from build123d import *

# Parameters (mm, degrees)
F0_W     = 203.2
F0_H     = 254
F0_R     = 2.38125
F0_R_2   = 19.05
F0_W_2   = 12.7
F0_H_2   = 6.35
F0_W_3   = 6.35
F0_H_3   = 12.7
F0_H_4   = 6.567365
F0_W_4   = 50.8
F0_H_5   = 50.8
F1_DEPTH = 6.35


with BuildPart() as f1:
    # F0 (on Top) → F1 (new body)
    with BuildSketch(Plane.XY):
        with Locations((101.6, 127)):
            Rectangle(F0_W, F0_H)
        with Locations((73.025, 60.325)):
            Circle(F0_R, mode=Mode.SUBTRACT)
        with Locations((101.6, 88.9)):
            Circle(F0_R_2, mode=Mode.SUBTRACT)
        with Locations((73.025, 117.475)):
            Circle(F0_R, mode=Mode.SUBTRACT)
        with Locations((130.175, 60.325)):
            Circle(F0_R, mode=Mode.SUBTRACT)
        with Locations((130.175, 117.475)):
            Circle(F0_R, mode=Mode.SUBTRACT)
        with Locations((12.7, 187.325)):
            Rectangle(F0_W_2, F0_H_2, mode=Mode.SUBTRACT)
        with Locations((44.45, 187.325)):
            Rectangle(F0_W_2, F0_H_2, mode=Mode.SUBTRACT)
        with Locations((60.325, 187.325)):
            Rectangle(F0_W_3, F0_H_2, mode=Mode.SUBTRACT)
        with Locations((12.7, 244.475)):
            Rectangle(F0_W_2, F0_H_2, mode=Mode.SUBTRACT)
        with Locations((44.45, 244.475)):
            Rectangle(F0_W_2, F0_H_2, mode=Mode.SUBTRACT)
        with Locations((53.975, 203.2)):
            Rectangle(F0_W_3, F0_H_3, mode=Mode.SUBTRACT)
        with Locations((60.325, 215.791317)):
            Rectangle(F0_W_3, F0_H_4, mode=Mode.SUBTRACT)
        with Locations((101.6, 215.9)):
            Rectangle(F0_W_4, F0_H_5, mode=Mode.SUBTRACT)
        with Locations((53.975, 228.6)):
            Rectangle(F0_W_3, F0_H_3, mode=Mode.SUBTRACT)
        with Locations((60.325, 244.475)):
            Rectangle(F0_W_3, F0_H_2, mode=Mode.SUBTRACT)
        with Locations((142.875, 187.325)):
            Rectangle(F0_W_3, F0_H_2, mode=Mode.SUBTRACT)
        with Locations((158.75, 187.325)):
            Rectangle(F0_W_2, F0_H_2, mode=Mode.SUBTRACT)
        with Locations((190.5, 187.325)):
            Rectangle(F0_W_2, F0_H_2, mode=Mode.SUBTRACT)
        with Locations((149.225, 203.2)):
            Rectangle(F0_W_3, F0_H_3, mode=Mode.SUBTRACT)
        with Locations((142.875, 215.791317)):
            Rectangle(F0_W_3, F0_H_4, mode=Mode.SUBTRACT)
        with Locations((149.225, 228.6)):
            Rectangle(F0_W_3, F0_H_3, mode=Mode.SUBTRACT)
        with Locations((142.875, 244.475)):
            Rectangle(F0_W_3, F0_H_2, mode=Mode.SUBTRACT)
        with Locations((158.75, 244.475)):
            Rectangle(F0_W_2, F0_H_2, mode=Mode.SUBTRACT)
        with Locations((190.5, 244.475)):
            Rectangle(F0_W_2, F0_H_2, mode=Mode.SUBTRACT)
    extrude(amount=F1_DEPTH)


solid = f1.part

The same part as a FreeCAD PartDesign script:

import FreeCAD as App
import Part
import Sketcher

V = App.Vector
Q = App.Units.Quantity

doc = App.newDocument("Part")
body = doc.addObject("PartDesign::Body", "Body")

# Sketch on XY plane
sketch1 = doc.addObject("Sketcher::SketchObject", "Sketch")
body.addObject(sketch1)
sketch1.AttachmentSupport = (doc.XY_Plane, [""])
sketch1.MapMode = "FlatFace"
sketch1.addGeometry([
    Part.LineSegment(V(0, 254, 0), V(0, 0, 0)),  # 0
    Part.LineSegment(V(0, 0, 0), V(203.2, 0, 0)),  # 1
    Part.LineSegment(V(203.2, 0, 0), V(203.2, 254, 0)),  # 2
    Part.LineSegment(V(203.2, 254, 0), V(0, 254, 0)),  # 3
    Part.Circle(V(73, 60.3, 0), V(0, 0, 1), 2.4),  # 4
    Part.Circle(V(101.6, 88.9, 0), V(0, 0, 1), 19.1),  # 5
    Part.Circle(V(73, 117.5, 0), V(0, 0, 1), 2.4),  # 6
    Part.Circle(V(130.2, 60.3, 0), V(0, 0, 1), 2.4),  # 7
    Part.Circle(V(130.2, 117.5, 0), V(0, 0, 1), 2.4),  # 8
    Part.LineSegment(V(19.1, 184.2, 0), V(6.3, 184.2, 0)),  # 9
    Part.LineSegment(V(6.3, 184.2, 0), V(6.3, 190.5, 0)),  # 10
    Part.LineSegment(V(6.3, 190.5, 0), V(19.1, 190.5, 0)),  # 11
    Part.LineSegment(V(19.1, 190.5, 0), V(19.1, 184.2, 0)),  # 12
    Part.LineSegment(V(50.8, 184.2, 0), V(38.1, 184.2, 0)),  # 13
    Part.LineSegment(V(38.1, 184.2, 0), V(38.1, 190.5, 0)),  # 14
    Part.LineSegment(V(38.1, 190.5, 0), V(50.8, 190.5, 0)),  # 15
    Part.LineSegment(V(50.8, 190.5, 0), V(50.8, 184.2, 0)),  # 16
    Part.LineSegment(V(63.5, 184.2, 0), V(57.1, 184.2, 0)),  # 17
    Part.LineSegment(V(57.1, 184.2, 0), V(57.1, 190.5, 0)),  # 18
    Part.LineSegment(V(57.1, 190.5, 0), V(63.5, 190.5, 0)),  # 19
    Part.LineSegment(V(63.5, 190.5, 0), V(63.5, 184.2, 0)),  # 20
    Part.LineSegment(V(57.1, 196.8, 0), V(50.8, 196.8, 0)),  # 21
    Part.LineSegment(V(50.8, 196.8, 0), V(50.8, 209.6, 0)),  # 22
    Part.LineSegment(V(50.8, 209.6, 0), V(57.1, 209.6, 0)),  # 23
    Part.LineSegment(V(57.1, 209.6, 0), V(57.1, 196.8, 0)),  # 24
    Part.LineSegment(V(19.1, 241.3, 0), V(6.3, 241.3, 0)),  # 25
    Part.LineSegment(V(6.3, 241.3, 0), V(6.3, 247.7, 0)),  # 26
    Part.LineSegment(V(6.3, 247.7, 0), V(19.1, 247.7, 0)),  # 27
    Part.LineSegment(V(19.1, 247.7, 0), V(19.1, 241.3, 0)),  # 28
    Part.LineSegment(V(57.1, 222.2, 0), V(50.8, 222.2, 0)),  # 29
    Part.LineSegment(V(50.8, 222.2, 0), V(50.8, 234.9, 0)),  # 30
    Part.LineSegment(V(50.8, 234.9, 0), V(57.1, 234.9, 0)),  # 31
    Part.LineSegment(V(57.1, 234.9, 0), V(57.1, 222.2, 0)),  # 32
    Part.LineSegment(V(50.8, 241.3, 0), V(38.1, 241.3, 0)),  # 33
    Part.LineSegment(V(38.1, 241.3, 0), V(38.1, 247.7, 0)),  # 34
    Part.LineSegment(V(38.1, 247.7, 0), V(50.8, 247.7, 0)),  # 35
    Part.LineSegment(V(50.8, 247.7, 0), V(50.8, 241.3, 0)),  # 36
    Part.LineSegment(V(63.5, 212.5, 0), V(57.1, 212.5, 0)),  # 37
    Part.LineSegment(V(57.1, 212.5, 0), V(57.1, 219.1, 0)),  # 38
    Part.LineSegment(V(57.1, 219.1, 0), V(63.5, 219.1, 0)),  # 39
    Part.LineSegment(V(63.5, 219.1, 0), V(63.5, 212.5, 0)),  # 40
    Part.LineSegment(V(127, 190.5, 0), V(76.2, 190.5, 0)),  # 41
    Part.LineSegment(V(76.2, 190.5, 0), V(76.2, 241.3, 0)),  # 42
    Part.LineSegment(V(76.2, 241.3, 0), V(127, 241.3, 0)),  # 43
    Part.LineSegment(V(127, 241.3, 0), V(127, 190.5, 0)),  # 44
    Part.LineSegment(V(63.5, 241.3, 0), V(57.1, 241.3, 0)),  # 45
    Part.LineSegment(V(57.1, 241.3, 0), V(57.1, 247.7, 0)),  # 46
    Part.LineSegment(V(57.1, 247.7, 0), V(63.5, 247.7, 0)),  # 47
    Part.LineSegment(V(63.5, 247.7, 0), V(63.5, 241.3, 0)),  # 48
    Part.LineSegment(V(146.1, 184.2, 0), V(139.7, 184.2, 0)),  # 49
    Part.LineSegment(V(139.7, 184.2, 0), V(139.7, 190.5, 0)),  # 50
    Part.LineSegment(V(139.7, 190.5, 0), V(146.1, 190.5, 0)),  # 51
    Part.LineSegment(V(146.1, 190.5, 0), V(146.1, 184.2, 0)),  # 52
    Part.LineSegment(V(165.1, 184.2, 0), V(152.4, 184.2, 0)),  # 53
    Part.LineSegment(V(152.4, 184.2, 0), V(152.4, 190.5, 0)),  # 54
    Part.LineSegment(V(152.4, 190.5, 0), V(165.1, 190.5, 0)),  # 55
    Part.LineSegment(V(165.1, 190.5, 0), V(165.1, 184.2, 0)),  # 56
    Part.LineSegment(V(196.8, 184.2, 0), V(184.2, 184.2, 0)),  # 57
    Part.LineSegment(V(184.2, 184.2, 0), V(184.2, 190.5, 0)),  # 58
    Part.LineSegment(V(184.2, 190.5, 0), V(196.8, 190.5, 0)),  # 59
    Part.LineSegment(V(196.8, 190.5, 0), V(196.8, 184.2, 0)),  # 60
    Part.LineSegment(V(146.1, 212.5, 0), V(139.7, 212.5, 0)),  # 61
    Part.LineSegment(V(139.7, 212.5, 0), V(139.7, 219.1, 0)),  # 62
    Part.LineSegment(V(139.7, 219.1, 0), V(146.1, 219.1, 0)),  # 63
    Part.LineSegment(V(146.1, 219.1, 0), V(146.1, 212.5, 0)),  # 64
    Part.LineSegment(V(146.1, 241.3, 0), V(139.7, 241.3, 0)),  # 65
    Part.LineSegment(V(139.7, 241.3, 0), V(139.7, 247.7, 0)),  # 66
    Part.LineSegment(V(139.7, 247.7, 0), V(146.1, 247.7, 0)),  # 67
    Part.LineSegment(V(146.1, 247.7, 0), V(146.1, 241.3, 0)),  # 68
    Part.LineSegment(V(152.4, 196.8, 0), V(146.1, 196.8, 0)),  # 69
    Part.LineSegment(V(146.1, 196.8, 0), V(146.1, 209.6, 0)),  # 70
    Part.LineSegment(V(146.1, 209.6, 0), V(152.4, 209.6, 0)),  # 71
    Part.LineSegment(V(152.4, 209.6, 0), V(152.4, 196.8, 0)),  # 72
    Part.LineSegment(V(152.4, 222.2, 0), V(146.1, 222.2, 0)),  # 73
    Part.LineSegment(V(146.1, 222.2, 0), V(146.1, 234.9, 0)),  # 74
    Part.LineSegment(V(146.1, 234.9, 0), V(152.4, 234.9, 0)),  # 75
    Part.LineSegment(V(152.4, 234.9, 0), V(152.4, 222.2, 0)),  # 76
    Part.LineSegment(V(165.1, 241.3, 0), V(152.4, 241.3, 0)),  # 77
    Part.LineSegment(V(152.4, 241.3, 0), V(152.4, 247.7, 0)),  # 78
    Part.LineSegment(V(152.4, 247.7, 0), V(165.1, 247.7, 0)),  # 79
    Part.LineSegment(V(165.1, 247.7, 0), V(165.1, 241.3, 0)),  # 80
    Part.LineSegment(V(196.8, 241.3, 0), V(184.2, 241.3, 0)),  # 81
    Part.LineSegment(V(184.2, 241.3, 0), V(184.2, 247.7, 0)),  # 82
    Part.LineSegment(V(184.2, 247.7, 0), V(196.8, 247.7, 0)),  # 83
    Part.LineSegment(V(196.8, 247.7, 0), V(196.8, 241.3, 0)),  # 84
], False)
sketch1.addConstraint([
    Sketcher.Constraint("Coincident", 0, 2, 1, 1),
    Sketcher.Constraint("Coincident", 1, 2, 2, 1),
    Sketcher.Constraint("Coincident", 2, 2, 3, 1),
    Sketcher.Constraint("Coincident", 3, 2, 0, 1),
    Sketcher.Constraint("Coincident", 9, 2, 10, 1),
    Sketcher.Constraint("Coincident", 10, 2, 11, 1),
    Sketcher.Constraint("Coincident", 11, 2, 12, 1),
    Sketcher.Constraint("Coincident", 12, 2, 9, 1),
    Sketcher.Constraint("Coincident", 13, 2, 14, 1),
    Sketcher.Constraint("Coincident", 14, 2, 15, 1),
    Sketcher.Constraint("Coincident", 15, 2, 16, 1),
    Sketcher.Constraint("Coincident", 16, 2, 13, 1),
    Sketcher.Constraint("Coincident", 17, 2, 18, 1),
    Sketcher.Constraint("Coincident", 18, 2, 19, 1),
    Sketcher.Constraint("Coincident", 19, 2, 20, 1),
    Sketcher.Constraint("Coincident", 20, 2, 17, 1),
    Sketcher.Constraint("Coincident", 21, 2, 22, 1),
    Sketcher.Constraint("Coincident", 22, 2, 23, 1),
    Sketcher.Constraint("Coincident", 23, 2, 24, 1),
    Sketcher.Constraint("Coincident", 24, 2, 21, 1),
    Sketcher.Constraint("Coincident", 25, 2, 26, 1),
    Sketcher.Constraint("Coincident", 26, 2, 27, 1),
    Sketcher.Constraint("Coincident", 27, 2, 28, 1),
    Sketcher.Constraint("Coincident", 28, 2, 25, 1),
    Sketcher.Constraint("Coincident", 29, 2, 30, 1),
    Sketcher.Constraint("Coincident", 30, 2, 31, 1),
    Sketcher.Constraint("Coincident", 31, 2, 32, 1),
    Sketcher.Constraint("Coincident", 32, 2, 29, 1),
    Sketcher.Constraint("Coincident", 33, 2, 34, 1),
    Sketcher.Constraint("Coincident", 34, 2, 35, 1),
    Sketcher.Constraint("Coincident", 35, 2, 36, 1),
    Sketcher.Constraint("Coincident", 36, 2, 33, 1),
    Sketcher.Constraint("Coincident", 37, 2, 38, 1),
    Sketcher.Constraint("Coincident", 38, 2, 39, 1),
    Sketcher.Constraint("Coincident", 39, 2, 40, 1),
    Sketcher.Constraint("Coincident", 40, 2, 37, 1),
    Sketcher.Constraint("Coincident", 41, 2, 42, 1),
    Sketcher.Constraint("Coincident", 42, 2, 43, 1),
    Sketcher.Constraint("Coincident", 43, 2, 44, 1),
    Sketcher.Constraint("Coincident", 44, 2, 41, 1),
    Sketcher.Constraint("Coincident", 45, 2, 46, 1),
    Sketcher.Constraint("Coincident", 46, 2, 47, 1),
    Sketcher.Constraint("Coincident", 47, 2, 48, 1),
    Sketcher.Constraint("Coincident", 48, 2, 45, 1),
    Sketcher.Constraint("Coincident", 49, 2, 50, 1),
    Sketcher.Constraint("Coincident", 50, 2, 51, 1),
    Sketcher.Constraint("Coincident", 51, 2, 52, 1),
    Sketcher.Constraint("Coincident", 52, 2, 49, 1),
    Sketcher.Constraint("Coincident", 53, 2, 54, 1),
    Sketcher.Constraint("Coincident", 54, 2, 55, 1),
    Sketcher.Constraint("Coincident", 55, 2, 56, 1),
    Sketcher.Constraint("Coincident", 56, 2, 53, 1),
    Sketcher.Constraint("Coincident", 57, 2, 58, 1),
    Sketcher.Constraint("Coincident", 58, 2, 59, 1),
    Sketcher.Constraint("Coincident", 59, 2, 60, 1),
    Sketcher.Constraint("Coincident", 60, 2, 57, 1),
    Sketcher.Constraint("Coincident", 61, 2, 62, 1),
    Sketcher.Constraint("Coincident", 62, 2, 63, 1),
    Sketcher.Constraint("Coincident", 63, 2, 64, 1),
    Sketcher.Constraint("Coincident", 64, 2, 61, 1),
    Sketcher.Constraint("Coincident", 65, 2, 66, 1),
    Sketcher.Constraint("Coincident", 66, 2, 67, 1),
    Sketcher.Constraint("Coincident", 67, 2, 68, 1),
    Sketcher.Constraint("Coincident", 68, 2, 65, 1),
    Sketcher.Constraint("Coincident", 69, 2, 70, 1),
    Sketcher.Constraint("Coincident", 70, 2, 71, 1),
    Sketcher.Constraint("Coincident", 71, 2, 72, 1),
    Sketcher.Constraint("Coincident", 72, 2, 69, 1),
    Sketcher.Constraint("Coincident", 73, 2, 74, 1),
    Sketcher.Constraint("Coincident", 74, 2, 75, 1),
    Sketcher.Constraint("Coincident", 75, 2, 76, 1),
    Sketcher.Constraint("Coincident", 76, 2, 73, 1),
    Sketcher.Constraint("Coincident", 77, 2, 78, 1),
    Sketcher.Constraint("Coincident", 78, 2, 79, 1),
    Sketcher.Constraint("Coincident", 79, 2, 80, 1),
    Sketcher.Constraint("Coincident", 80, 2, 77, 1),
    Sketcher.Constraint("Coincident", 81, 2, 82, 1),
    Sketcher.Constraint("Coincident", 82, 2, 83, 1),
    Sketcher.Constraint("Coincident", 83, 2, 84, 1),
    Sketcher.Constraint("Coincident", 84, 2, 81, 1),
    Sketcher.Constraint("Vertical", 0),
    Sketcher.Constraint("Horizontal", 1),
    Sketcher.Constraint("Vertical", 2),
    Sketcher.Constraint("Horizontal", 3),
    Sketcher.Constraint("Horizontal", 9),
    Sketcher.Constraint("Vertical", 10),
    Sketcher.Constraint("Horizontal", 11),
    Sketcher.Constraint("Vertical", 12),
    Sketcher.Constraint("Horizontal", 13),
    Sketcher.Constraint("Vertical", 14),
    Sketcher.Constraint("Horizontal", 15),
    Sketcher.Constraint("Vertical", 16),
    Sketcher.Constraint("Horizontal", 17),
    Sketcher.Constraint("Vertical", 18),
    Sketcher.Constraint("Horizontal", 19),
    Sketcher.Constraint("Vertical", 20),
    Sketcher.Constraint("Horizontal", 21),
    Sketcher.Constraint("Vertical", 22),
    Sketcher.Constraint("Horizontal", 23),
    Sketcher.Constraint("Vertical", 24),
    Sketcher.Constraint("Horizontal", 25),
    Sketcher.Constraint("Vertical", 26),
    Sketcher.Constraint("Horizontal", 27),
    Sketcher.Constraint("Vertical", 28),
    Sketcher.Constraint("Horizontal", 29),
    Sketcher.Constraint("Vertical", 30),
    Sketcher.Constraint("Horizontal", 31),
    Sketcher.Constraint("Vertical", 32),
    Sketcher.Constraint("Horizontal", 33),
    Sketcher.Constraint("Vertical", 34),
    Sketcher.Constraint("Horizontal", 35),
    Sketcher.Constraint("Vertical", 36),
    Sketcher.Constraint("Horizontal", 37),
    Sketcher.Constraint("Vertical", 38),
    Sketcher.Constraint("Horizontal", 39),
    Sketcher.Constraint("Vertical", 40),
    Sketcher.Constraint("Horizontal", 41),
    Sketcher.Constraint("Vertical", 42),
    Sketcher.Constraint("Horizontal", 43),
    Sketcher.Constraint("Vertical", 44),
    Sketcher.Constraint("Horizontal", 45),
    Sketcher.Constraint("Vertical", 46),
    Sketcher.Constraint("Horizontal", 47),
    Sketcher.Constraint("Vertical", 48),
    Sketcher.Constraint("Horizontal", 49),
    Sketcher.Constraint("Vertical", 50),
    Sketcher.Constraint("Horizontal", 51),
    Sketcher.Constraint("Vertical", 52),
    Sketcher.Constraint("Horizontal", 53),
    Sketcher.Constraint("Vertical", 54),
    Sketcher.Constraint("Horizontal", 55),
    Sketcher.Constraint("Vertical", 56),
    Sketcher.Constraint("Horizontal", 57),
    Sketcher.Constraint("Vertical", 58),
    Sketcher.Constraint("Horizontal", 59),
    Sketcher.Constraint("Vertical", 60),
    Sketcher.Constraint("Horizontal", 61),
    Sketcher.Constraint("Vertical", 62),
    Sketcher.Constraint("Horizontal", 63),
    Sketcher.Constraint("Vertical", 64),
    Sketcher.Constraint("Horizontal", 65),
    Sketcher.Constraint("Vertical", 66),
    Sketcher.Constraint("Horizontal", 67),
    Sketcher.Constraint("Vertical", 68),
    Sketcher.Constraint("Horizontal", 69),
    Sketcher.Constraint("Vertical", 70),
    Sketcher.Constraint("Horizontal", 71),
    Sketcher.Constraint("Vertical", 72),
    Sketcher.Constraint("Horizontal", 73),
    Sketcher.Constraint("Vertical", 74),
    Sketcher.Constraint("Horizontal", 75),
    Sketcher.Constraint("Vertical", 76),
    Sketcher.Constraint("Horizontal", 77),
    Sketcher.Constraint("Vertical", 78),
    Sketcher.Constraint("Horizontal", 79),
    Sketcher.Constraint("Vertical", 80),
    Sketcher.Constraint("Horizontal", 81),
    Sketcher.Constraint("Vertical", 82),
    Sketcher.Constraint("Horizontal", 83),
    Sketcher.Constraint("Vertical", 84),
    Sketcher.Constraint("Coincident", 0, 2, -1, 1),
    Sketcher.Constraint("Equal", 4, 6),
    Sketcher.Constraint("Equal", 6, 7),
    Sketcher.Constraint("Equal", 7, 8),
    Sketcher.Constraint("Horizontal", 4, 3, 7, 3),
    Sketcher.Constraint("Horizontal", 6, 3, 8, 3),
    Sketcher.Constraint("Horizontal", 12, 2, 13, 2),
    Sketcher.Constraint("Horizontal", 11, 2, 14, 2),
    Sketcher.Constraint("Horizontal", 16, 2, 17, 2),
    Sketcher.Constraint("Horizontal", 15, 2, 18, 2),
    Sketcher.Constraint("Horizontal", 28, 2, 33, 2),
    Sketcher.Constraint("Horizontal", 27, 2, 34, 2),
    Sketcher.Constraint("Horizontal", 19, 2, 41, 2),
    Sketcher.Constraint("Horizontal", 36, 2, 42, 2),
    Sketcher.Constraint("Horizontal", 43, 2, 45, 2),
    Sketcher.Constraint("Horizontal", 35, 2, 46, 2),
    Sketcher.Constraint("Horizontal", 20, 2, 49, 2),
    Sketcher.Constraint("Horizontal", 44, 2, 50, 2),
    Sketcher.Constraint("Horizontal", 52, 2, 53, 2),
    Sketcher.Constraint("Horizontal", 51, 2, 54, 2),
    Sketcher.Constraint("Horizontal", 56, 2, 57, 2),
    Sketcher.Constraint("Horizontal", 55, 2, 58, 2),
    Sketcher.Constraint("Horizontal", 40, 2, 61, 2),
    Sketcher.Constraint("Horizontal", 39, 2, 62, 2),
    Sketcher.Constraint("Horizontal", 48, 2, 65, 2),
    Sketcher.Constraint("Horizontal", 47, 2, 66, 2),
    Sketcher.Constraint("Horizontal", 24, 2, 69, 2),
    Sketcher.Constraint("Horizontal", 23, 2, 70, 2),
    Sketcher.Constraint("Horizontal", 32, 2, 73, 2),
    Sketcher.Constraint("Horizontal", 31, 2, 74, 2),
    Sketcher.Constraint("Horizontal", 68, 2, 77, 2),
    Sketcher.Constraint("Horizontal", 67, 2, 78, 2),
    Sketcher.Constraint("Horizontal", 80, 2, 81, 2),
    Sketcher.Constraint("Horizontal", 79, 2, 82, 2),
    Sketcher.Constraint("Vertical", 4, 3, 6, 3),
    Sketcher.Constraint("Vertical", 7, 3, 8, 3),
    Sketcher.Constraint("Vertical", 16, 2, 21, 2),
    Sketcher.Constraint("Vertical", 18, 2, 23, 2),
    Sketcher.Constraint("Vertical", 10, 2, 25, 2),
    Sketcher.Constraint("Vertical", 12, 2, 27, 2),
    Sketcher.Constraint("Vertical", 22, 2, 29, 2),
    Sketcher.Constraint("Vertical", 24, 2, 31, 2),
    Sketcher.Constraint("Vertical", 14, 2, 33, 2),
    Sketcher.Constraint("Vertical", 30, 2, 35, 2),
    Sketcher.Constraint("Vertical", 32, 2, 37, 2),
    Sketcher.Constraint("Vertical", 20, 2, 39, 2),
    Sketcher.Constraint("Vertical", 38, 2, 45, 2),
    Sketcher.Constraint("Vertical", 40, 2, 47, 2),
    Sketcher.Constraint("Vertical", 50, 2, 61, 2),
    Sketcher.Constraint("Vertical", 52, 2, 63, 2),
    Sketcher.Constraint("Vertical", 62, 2, 65, 2),
    Sketcher.Constraint("Vertical", 64, 2, 67, 2),
    Sketcher.Constraint("Vertical", 68, 2, 69, 2),
    Sketcher.Constraint("Vertical", 54, 2, 71, 2),
    Sketcher.Constraint("Vertical", 70, 2, 73, 2),
    Sketcher.Constraint("Vertical", 72, 2, 75, 2),
    Sketcher.Constraint("Vertical", 76, 2, 77, 2),
    Sketcher.Constraint("Vertical", 56, 2, 79, 2),
    Sketcher.Constraint("Vertical", 58, 2, 81, 2),
    Sketcher.Constraint("Vertical", 60, 2, 83, 2),
    Sketcher.Constraint("Equal", 11, 13),
    Sketcher.Constraint("Equal", 19, 21),
    Sketcher.Constraint("Equal", 47, 49),
    Sketcher.Constraint("Equal", 35, 53),
    Sketcher.Constraint("Equal", 55, 57),
    Sketcher.Constraint("Equal", 67, 69),
    Sketcher.Constraint("Equal", 75, 10),
    Sketcher.Constraint("Equal", 83, 22),
    Sketcher.Constraint("Equal", 20, 26),
    Sketcher.Constraint("Equal", 24, 30),
    Sketcher.Constraint("Equal", 43, 42),
    Sketcher.Constraint("Diameter", 5, Q("1.5 in")),
    Sketcher.Constraint("DistanceX", 1, 1, 1, 2, Q("8 in")),
    Sketcher.Constraint("DistanceX", 41, 2, 41, 1, Q("2 in")),
    Sketcher.Constraint("DistanceY", 0, 2, 0, 1, Q("10 in")),
    Sketcher.Constraint("Diameter", 4, Q("0.1875 in")),
    Sketcher.Constraint("DistanceX", 9, 2, 9, 1, Q("0.5 in")),
    Sketcher.Constraint("DistanceX", -1, 1, 5, 3, Q("4 in")),
    Sketcher.Constraint("DistanceX", -1, 1, 15, 2, Q("2 in")),
    Sketcher.Constraint("DistanceX", -1, 1, 41, 2, Q("3 in")),
    Sketcher.Constraint("DistanceX", -1, 1, 53, 2, Q("6 in")),
    Sketcher.Constraint("DistanceX", 17, 2, 17, 1, Q("0.25 in")),
    Sketcher.Constraint("DistanceY", -1, 1, 5, 3, Q("3.5 in")),
    Sketcher.Constraint("DistanceY", -1, 1, 10, 2, Q("7.5 in")),
    Sketcher.Constraint("DistanceX", -1, 1, 9, 2, Q("0.25 in")),
    Sketcher.Constraint("DistanceY", -1, 1, 21, 2, Q("7.75 in")),
    Sketcher.Constraint("DistanceY", -1, 1, 29, 2, Q("8.75 in")),
    Sketcher.Constraint("DistanceX", -1, 1, 57, 2, Q("7.25 in")),
    Sketcher.Constraint("DistanceX", -1, 1, 4, 3, Q("2.875 in")),
    Sketcher.Constraint("DistanceY", -1, 1, 4, 3, Q("2.375 in")),
    Sketcher.Constraint("DistanceY", -1, 1, 6, 3, Q("4.625 in")),
    Sketcher.Constraint("DistanceX", -1, 1, 7, 3, Q("5.125 in")),
    Sketcher.Constraint("DistanceY", -1, 1, 38, 2, Q("8.625 in")),
    Sketcher.Constraint("DistanceY", 38, 1, 38, 2, 6.567365),
])
pad1 = doc.addObject("PartDesign::Pad", "Pad")
body.addObject(pad1)
pad1.Profile = sketch1
pad1.Length = Q("0.25 in")

doc.recompute()
